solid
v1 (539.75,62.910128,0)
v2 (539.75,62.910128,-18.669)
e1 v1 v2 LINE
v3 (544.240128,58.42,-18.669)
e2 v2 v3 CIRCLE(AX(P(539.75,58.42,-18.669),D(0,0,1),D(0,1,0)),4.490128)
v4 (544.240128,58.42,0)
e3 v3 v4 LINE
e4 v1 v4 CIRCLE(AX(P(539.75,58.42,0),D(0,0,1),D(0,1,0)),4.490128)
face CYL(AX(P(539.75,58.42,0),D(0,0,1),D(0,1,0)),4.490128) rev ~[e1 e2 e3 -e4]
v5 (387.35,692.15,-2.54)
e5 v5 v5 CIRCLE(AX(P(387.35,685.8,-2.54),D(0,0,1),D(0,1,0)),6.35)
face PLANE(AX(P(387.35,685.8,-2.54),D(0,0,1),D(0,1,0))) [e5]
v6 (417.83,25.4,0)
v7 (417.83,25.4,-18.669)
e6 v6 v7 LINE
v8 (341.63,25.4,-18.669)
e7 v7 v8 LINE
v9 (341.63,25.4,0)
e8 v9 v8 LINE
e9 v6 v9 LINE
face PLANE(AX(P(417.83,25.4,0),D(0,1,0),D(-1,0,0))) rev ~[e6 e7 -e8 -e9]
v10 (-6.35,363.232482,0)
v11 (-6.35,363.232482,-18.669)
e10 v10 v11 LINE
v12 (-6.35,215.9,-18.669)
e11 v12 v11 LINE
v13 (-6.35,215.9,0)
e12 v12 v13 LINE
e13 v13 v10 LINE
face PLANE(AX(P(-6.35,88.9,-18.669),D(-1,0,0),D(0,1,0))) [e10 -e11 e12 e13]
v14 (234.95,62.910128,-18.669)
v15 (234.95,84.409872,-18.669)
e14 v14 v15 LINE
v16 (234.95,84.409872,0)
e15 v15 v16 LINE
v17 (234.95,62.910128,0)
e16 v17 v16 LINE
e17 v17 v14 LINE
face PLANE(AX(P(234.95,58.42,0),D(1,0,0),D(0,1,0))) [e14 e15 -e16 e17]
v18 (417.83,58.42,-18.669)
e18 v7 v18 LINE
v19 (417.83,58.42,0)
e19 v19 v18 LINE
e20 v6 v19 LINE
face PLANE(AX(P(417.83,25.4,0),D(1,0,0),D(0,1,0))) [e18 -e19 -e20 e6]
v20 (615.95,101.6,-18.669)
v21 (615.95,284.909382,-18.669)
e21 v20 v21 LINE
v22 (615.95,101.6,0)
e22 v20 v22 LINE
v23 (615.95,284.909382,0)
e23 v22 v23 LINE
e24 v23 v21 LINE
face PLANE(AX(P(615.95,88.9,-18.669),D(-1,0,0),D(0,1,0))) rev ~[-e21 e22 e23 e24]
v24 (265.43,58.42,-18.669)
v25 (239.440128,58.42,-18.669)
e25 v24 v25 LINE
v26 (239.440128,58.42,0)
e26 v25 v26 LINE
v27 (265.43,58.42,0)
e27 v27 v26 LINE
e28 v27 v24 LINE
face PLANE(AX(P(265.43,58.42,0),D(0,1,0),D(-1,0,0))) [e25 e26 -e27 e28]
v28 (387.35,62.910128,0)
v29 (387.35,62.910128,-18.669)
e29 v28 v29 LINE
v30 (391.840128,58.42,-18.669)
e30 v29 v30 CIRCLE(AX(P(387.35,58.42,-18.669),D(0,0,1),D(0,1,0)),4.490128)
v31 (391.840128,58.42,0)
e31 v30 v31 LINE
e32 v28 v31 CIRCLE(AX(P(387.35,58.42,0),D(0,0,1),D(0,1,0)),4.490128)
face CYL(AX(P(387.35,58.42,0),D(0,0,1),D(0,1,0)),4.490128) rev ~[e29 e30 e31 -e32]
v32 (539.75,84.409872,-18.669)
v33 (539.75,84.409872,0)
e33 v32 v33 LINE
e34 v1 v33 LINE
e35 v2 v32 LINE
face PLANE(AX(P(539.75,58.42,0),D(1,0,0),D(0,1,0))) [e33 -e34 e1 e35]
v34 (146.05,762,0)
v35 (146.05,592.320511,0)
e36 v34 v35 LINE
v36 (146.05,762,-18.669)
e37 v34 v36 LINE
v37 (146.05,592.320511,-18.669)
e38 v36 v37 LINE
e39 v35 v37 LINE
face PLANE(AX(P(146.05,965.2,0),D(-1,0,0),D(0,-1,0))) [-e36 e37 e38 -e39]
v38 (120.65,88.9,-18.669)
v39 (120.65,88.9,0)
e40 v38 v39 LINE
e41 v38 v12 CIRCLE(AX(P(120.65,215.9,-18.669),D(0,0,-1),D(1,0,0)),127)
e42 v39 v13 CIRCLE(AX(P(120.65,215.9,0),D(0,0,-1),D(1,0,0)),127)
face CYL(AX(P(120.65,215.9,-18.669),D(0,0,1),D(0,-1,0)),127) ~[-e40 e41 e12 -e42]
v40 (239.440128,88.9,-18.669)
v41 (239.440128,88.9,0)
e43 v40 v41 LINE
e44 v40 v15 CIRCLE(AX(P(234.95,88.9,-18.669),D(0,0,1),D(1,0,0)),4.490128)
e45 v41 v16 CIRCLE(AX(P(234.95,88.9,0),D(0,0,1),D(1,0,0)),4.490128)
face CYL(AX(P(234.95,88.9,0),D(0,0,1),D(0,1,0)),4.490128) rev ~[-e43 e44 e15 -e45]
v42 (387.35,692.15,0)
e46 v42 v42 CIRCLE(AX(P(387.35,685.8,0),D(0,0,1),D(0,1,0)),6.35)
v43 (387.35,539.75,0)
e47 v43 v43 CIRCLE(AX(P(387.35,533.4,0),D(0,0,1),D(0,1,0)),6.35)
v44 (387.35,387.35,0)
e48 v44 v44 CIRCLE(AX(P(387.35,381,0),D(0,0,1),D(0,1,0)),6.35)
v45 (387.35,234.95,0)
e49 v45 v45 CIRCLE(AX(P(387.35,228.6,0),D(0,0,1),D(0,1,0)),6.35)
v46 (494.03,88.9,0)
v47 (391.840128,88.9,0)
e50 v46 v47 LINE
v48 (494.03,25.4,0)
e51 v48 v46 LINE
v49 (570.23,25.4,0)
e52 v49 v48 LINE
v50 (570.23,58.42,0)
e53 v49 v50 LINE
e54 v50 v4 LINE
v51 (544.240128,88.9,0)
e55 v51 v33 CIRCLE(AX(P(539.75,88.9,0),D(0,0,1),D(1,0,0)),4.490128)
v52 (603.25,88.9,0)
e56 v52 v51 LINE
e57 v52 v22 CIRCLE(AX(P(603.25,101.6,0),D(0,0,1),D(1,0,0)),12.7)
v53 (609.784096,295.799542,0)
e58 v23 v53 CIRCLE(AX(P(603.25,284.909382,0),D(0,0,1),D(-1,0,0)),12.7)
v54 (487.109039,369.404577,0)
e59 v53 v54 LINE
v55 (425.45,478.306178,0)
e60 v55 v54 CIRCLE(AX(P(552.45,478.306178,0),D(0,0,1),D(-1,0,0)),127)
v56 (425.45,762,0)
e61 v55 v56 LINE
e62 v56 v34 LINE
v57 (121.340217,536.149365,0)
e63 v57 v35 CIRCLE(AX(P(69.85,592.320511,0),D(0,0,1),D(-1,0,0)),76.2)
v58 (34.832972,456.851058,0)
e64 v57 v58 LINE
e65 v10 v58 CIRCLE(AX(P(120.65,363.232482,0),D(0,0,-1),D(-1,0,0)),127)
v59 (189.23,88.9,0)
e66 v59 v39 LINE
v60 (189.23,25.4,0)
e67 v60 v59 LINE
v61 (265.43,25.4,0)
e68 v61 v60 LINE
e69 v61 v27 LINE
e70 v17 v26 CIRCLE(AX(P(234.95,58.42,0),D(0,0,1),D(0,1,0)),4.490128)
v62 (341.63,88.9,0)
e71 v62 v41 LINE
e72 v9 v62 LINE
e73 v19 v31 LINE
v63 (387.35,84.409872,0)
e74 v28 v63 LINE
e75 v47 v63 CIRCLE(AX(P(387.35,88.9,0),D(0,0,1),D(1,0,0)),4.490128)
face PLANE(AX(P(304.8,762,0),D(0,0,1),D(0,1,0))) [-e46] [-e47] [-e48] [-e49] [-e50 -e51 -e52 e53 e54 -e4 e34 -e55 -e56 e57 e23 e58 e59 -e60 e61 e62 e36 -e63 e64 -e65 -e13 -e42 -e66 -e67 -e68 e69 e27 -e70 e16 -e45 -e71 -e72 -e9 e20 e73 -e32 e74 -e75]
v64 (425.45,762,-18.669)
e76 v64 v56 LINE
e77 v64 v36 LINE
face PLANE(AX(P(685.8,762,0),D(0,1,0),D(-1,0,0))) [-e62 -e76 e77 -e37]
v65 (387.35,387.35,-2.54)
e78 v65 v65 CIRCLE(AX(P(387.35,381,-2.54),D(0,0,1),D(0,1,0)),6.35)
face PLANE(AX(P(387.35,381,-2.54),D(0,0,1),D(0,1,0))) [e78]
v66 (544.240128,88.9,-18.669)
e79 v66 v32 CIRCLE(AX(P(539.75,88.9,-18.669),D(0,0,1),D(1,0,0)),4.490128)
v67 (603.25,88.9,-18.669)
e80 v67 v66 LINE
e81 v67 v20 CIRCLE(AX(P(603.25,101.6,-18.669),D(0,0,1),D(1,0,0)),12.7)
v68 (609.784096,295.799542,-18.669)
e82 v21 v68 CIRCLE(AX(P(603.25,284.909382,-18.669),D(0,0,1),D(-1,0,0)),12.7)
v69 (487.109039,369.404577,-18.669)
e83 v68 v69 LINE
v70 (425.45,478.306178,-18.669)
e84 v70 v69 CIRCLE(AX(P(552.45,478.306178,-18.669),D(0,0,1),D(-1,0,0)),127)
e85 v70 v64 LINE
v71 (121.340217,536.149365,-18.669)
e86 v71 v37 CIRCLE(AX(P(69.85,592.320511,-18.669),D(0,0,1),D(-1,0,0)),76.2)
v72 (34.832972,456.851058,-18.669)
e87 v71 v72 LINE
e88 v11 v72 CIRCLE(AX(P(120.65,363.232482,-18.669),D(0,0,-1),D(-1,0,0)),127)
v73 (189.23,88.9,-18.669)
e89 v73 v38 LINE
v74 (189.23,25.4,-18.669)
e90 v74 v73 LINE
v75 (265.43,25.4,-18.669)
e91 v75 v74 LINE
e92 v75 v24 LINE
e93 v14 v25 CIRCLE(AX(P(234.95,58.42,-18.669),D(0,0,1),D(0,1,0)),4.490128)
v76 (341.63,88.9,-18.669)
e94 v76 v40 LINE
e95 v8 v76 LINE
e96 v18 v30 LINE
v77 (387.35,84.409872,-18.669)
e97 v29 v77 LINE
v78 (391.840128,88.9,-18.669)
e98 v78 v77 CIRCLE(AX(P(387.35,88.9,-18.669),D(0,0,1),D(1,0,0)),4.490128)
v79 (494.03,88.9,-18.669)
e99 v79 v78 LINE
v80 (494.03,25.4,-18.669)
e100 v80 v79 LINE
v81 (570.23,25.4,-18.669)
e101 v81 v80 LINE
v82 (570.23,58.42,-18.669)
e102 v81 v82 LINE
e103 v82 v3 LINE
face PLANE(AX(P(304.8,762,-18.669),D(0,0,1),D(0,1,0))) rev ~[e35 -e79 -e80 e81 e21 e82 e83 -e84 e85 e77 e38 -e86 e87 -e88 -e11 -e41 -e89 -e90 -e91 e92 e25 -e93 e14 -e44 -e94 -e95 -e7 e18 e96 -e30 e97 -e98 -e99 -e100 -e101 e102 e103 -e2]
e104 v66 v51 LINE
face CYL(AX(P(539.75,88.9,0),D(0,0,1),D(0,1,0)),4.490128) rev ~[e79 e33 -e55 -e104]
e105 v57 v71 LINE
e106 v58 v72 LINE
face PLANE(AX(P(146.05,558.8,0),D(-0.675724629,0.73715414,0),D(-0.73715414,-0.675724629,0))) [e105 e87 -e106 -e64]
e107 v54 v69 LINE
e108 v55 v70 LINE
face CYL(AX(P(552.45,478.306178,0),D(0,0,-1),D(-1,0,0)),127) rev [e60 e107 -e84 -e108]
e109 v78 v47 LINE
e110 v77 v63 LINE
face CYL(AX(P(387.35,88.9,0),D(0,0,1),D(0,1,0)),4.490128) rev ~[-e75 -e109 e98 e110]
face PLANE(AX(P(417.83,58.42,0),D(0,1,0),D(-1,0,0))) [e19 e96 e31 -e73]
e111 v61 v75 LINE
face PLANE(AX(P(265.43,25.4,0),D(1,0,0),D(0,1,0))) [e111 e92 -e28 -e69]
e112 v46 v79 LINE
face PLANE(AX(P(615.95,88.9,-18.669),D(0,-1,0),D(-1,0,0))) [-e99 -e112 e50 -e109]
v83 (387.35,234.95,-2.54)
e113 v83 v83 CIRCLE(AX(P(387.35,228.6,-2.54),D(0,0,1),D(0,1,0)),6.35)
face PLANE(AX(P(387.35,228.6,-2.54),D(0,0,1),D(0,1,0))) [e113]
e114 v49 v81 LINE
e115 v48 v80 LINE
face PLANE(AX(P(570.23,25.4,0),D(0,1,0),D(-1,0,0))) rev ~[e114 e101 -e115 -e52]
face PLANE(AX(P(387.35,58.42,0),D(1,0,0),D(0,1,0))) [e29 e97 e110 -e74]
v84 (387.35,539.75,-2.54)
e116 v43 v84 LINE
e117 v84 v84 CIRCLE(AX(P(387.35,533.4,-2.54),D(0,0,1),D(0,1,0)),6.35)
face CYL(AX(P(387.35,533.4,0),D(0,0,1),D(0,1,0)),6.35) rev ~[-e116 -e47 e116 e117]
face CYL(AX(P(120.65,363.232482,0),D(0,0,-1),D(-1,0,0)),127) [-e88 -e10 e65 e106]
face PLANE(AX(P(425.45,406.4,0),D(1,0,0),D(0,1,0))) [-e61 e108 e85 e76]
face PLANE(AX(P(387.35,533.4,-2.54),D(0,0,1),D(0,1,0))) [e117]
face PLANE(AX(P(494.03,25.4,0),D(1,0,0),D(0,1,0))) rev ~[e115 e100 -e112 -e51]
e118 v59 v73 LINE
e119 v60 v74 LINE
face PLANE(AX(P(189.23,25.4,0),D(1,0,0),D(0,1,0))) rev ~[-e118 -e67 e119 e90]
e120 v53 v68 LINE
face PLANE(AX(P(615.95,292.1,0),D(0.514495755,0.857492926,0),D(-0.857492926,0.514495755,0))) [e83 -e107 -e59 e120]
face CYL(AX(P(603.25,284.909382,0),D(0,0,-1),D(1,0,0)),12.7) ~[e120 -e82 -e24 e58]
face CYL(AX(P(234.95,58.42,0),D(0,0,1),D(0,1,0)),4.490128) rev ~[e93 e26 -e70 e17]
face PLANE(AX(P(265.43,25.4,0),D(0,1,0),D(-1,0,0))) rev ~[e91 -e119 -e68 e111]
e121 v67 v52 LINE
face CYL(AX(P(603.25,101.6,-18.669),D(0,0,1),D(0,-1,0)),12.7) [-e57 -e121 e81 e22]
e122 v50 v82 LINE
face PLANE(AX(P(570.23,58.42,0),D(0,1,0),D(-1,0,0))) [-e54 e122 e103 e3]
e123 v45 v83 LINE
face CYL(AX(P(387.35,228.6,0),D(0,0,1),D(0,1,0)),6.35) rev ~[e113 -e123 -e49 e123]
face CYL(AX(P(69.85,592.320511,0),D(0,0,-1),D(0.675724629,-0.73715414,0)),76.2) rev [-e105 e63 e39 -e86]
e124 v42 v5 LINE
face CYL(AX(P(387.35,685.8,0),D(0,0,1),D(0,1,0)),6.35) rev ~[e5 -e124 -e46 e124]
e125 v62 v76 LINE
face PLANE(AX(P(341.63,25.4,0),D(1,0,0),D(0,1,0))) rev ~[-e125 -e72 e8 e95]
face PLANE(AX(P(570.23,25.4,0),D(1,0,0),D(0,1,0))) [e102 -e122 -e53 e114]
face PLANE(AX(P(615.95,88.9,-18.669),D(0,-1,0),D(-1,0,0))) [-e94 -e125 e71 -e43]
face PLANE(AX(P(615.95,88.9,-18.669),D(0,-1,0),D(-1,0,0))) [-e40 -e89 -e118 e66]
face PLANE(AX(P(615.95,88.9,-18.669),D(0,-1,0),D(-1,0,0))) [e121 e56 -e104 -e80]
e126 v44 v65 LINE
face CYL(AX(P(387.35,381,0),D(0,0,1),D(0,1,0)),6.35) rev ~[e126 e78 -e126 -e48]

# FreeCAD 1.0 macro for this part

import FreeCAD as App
import Part
import Sketcher
Q = App.Units.Quantity


def edges_at(feature, points):
    """Names of the edges that pass closest to the given points."""
    edges = feature.Shape.Edges
    near = lambda p: min(range(len(edges)), key=lambda i: edges[i].distToShape(Part.Vertex(*p))[0])
    return sorted({f"Edge{near(p) + 1}" for p in points})

doc = App.newDocument("Part")
body = doc.addObject("PartDesign::Body", "Body")

sketch1 = doc.addObject("Sketcher::SketchObject", "Sketch")
body.addObject(sketch1)
sketch1.AttachmentSupport = (doc.XY_Plane, [""])
sketch1.MapMode = "FlatFace"
sketch1.addGeometry([
    Part.LineSegment(App.Vector(-673.1, 311.15, 0), App.Vector(-673.1, -311.15, 0)),
    Part.LineSegment(App.Vector(-673.1, -311.15, 0), App.Vector(673.1, -311.15, 0)),
    Part.LineSegment(App.Vector(673.1, -311.15, 0), App.Vector(673.1, 311.15, 0)),
    Part.LineSegment(App.Vector(673.1, 311.15, 0), App.Vector(-673.1, 311.15, 0)),
], False)
sketch1.addConstraint([
    Sketcher.Constraint("Coincident", 0, 2, 1, 1),
    Sketcher.Constraint("Coincident", 1, 2, 2, 1),
    Sketcher.Constraint("Coincident", 2, 2, 3, 1),
    Sketcher.Constraint("Coincident", 3, 2, 0, 1),
    Sketcher.Constraint("Vertical", 0),
    Sketcher.Constraint("Horizontal", 1),
    Sketcher.Constraint("Vertical", 2),
    Sketcher.Constraint("Horizontal", 3),
    Sketcher.Constraint("Symmetric", 0, 2, 2, 2, -1, 1),
    Sketcher.Constraint("DistanceX", 1, 1, 1, 2, Q("53 in")),
    Sketcher.Constraint("DistanceY", 0, 2, 0, 1, Q("24.5 in")),
])
pad1 = doc.addObject("PartDesign::Pad", "Pad")
body.addObject(pad1)
pad1.Profile = sketch1
pad1.Length = Q("0.735 in")

sketch2 = doc.addObject("Sketcher::SketchObject", "Sketch001")
body.addObject(sketch2)
sketch2.AttachmentSupport = (doc.XY_Plane, [""])
sketch2.MapMode = "FlatFace"
sketch2.AttachmentOffset = App.Placement(App.Vector(0, 0, 0.735 * 25.4), App.Rotation())
sketch2.addGeometry([
    Part.LineSegment(App.Vector(355.6, -120.65, 0), App.Vector(-355.6, -120.65, 0)),
    Part.LineSegment(App.Vector(-355.6, -120.65, 0), App.Vector(-469.9, -311.15, 0)),
    Part.LineSegment(App.Vector(-469.9, -311.15, 0), App.Vector(469.9, -311.15, 0)),
    Part.LineSegment(App.Vector(469.9, -311.15, 0), App.Vector(355.6, -120.65, 0)),
], False)
sketch2.addConstraint([
    Sketcher.Constraint("Coincident", 0, 2, 1, 1),
    Sketcher.Constraint("Coincident", 1, 2, 2, 1),
    Sketcher.Constraint("Coincident", 2, 2, 3, 1),
    Sketcher.Constraint("Coincident", 3, 2, 0, 1),
    Sketcher.Constraint("Horizontal", 0),
    Sketcher.Constraint("Horizontal", 2),
    Sketcher.Constraint("Equal", 1, 3),
    Sketcher.Constraint("DistanceX", 0, 2, 0, 1, Q("28 in")),
    Sketcher.Constraint("DistanceX", 2, 1, 2, 2, Q("37 in")),
    Sketcher.Constraint("DistanceX", 0, 2, -1, 1, Q("14 in")),
    Sketcher.Constraint("DistanceY", 1, 2, 0, 2, Q("7.5 in")),
    Sketcher.Constraint("DistanceY", 0, 2, -1, 1, Q("4.75 in")),
])
pocket1 = doc.addObject("PartDesign::Pocket", "Pocket")
body.addObject(pocket1)
pocket1.Profile = sketch2
pocket1.Type = "ThroughAll"

sketch3 = doc.addObject("Sketcher::SketchObject", "Sketch002")
body.addObject(sketch3)
sketch3.AttachmentSupport = (doc.XY_Plane, [""])
sketch3.MapMode = "FlatFace"
sketch3.AttachmentOffset = App.Placement(App.Vector(0, 0, 0.735 * 25.4), App.Rotation())
sketch3.addGeometry([
    Part.LineSegment(App.Vector(342.9, 311.15, 0), App.Vector(-342.9, 311.15, 0)),
    Part.LineSegment(App.Vector(-342.9, 311.15, 0), App.Vector(-203.2, 158.75, 0)),
    Part.LineSegment(App.Vector(-203.2, 158.75, 0), App.Vector(203.2, 158.75, 0)),
    Part.LineSegment(App.Vector(203.2, 158.75, 0), App.Vector(342.9, 311.15, 0)),
], False)
sketch3.addConstraint([
    Sketcher.Constraint("Coincident", 0, 2, 1, 1),
    Sketcher.Constraint("Coincident", 1, 2, 2, 1),
    Sketcher.Constraint("Coincident", 2, 2, 3, 1),
    Sketcher.Constraint("Coincident", 3, 2, 0, 1),
    Sketcher.Constraint("Horizontal", 0),
    Sketcher.Constraint("Horizontal", 2),
    Sketcher.Constraint("Equal", 1, 3),
    Sketcher.Constraint("DistanceX", 0, 2, 0, 1, Q("27 in")),
    Sketcher.Constraint("DistanceX", 2, 1, 2, 2, Q("16 in")),
    Sketcher.Constraint("DistanceX", 1, 2, -1, 1, Q("8 in")),
    Sketcher.Constraint("DistanceY", 1, 2, 0, 2, Q("6 in")),
    Sketcher.Constraint("DistanceY", -1, 1, 0, 2, Q("12.25 in")),
])
pocket2 = doc.addObject("PartDesign::Pocket", "Pocket001")
body.addObject(pocket2)
pocket2.Profile = sketch3
pocket2.Type = "ThroughAll"

sketch4 = doc.addObject("Sketcher::SketchObject", "Sketch003")
body.addObject(sketch4)
sketch4.AttachmentSupport = (doc.XY_Plane, [""])
sketch4.MapMode = "FlatFace"
sketch4.AttachmentOffset = App.Placement(App.Vector(0, 0, 0.735 * 25.4), App.Rotation())
sketch4.addGeometry([
    Part.LineSegment(App.Vector(673.1, 115.57, 0), App.Vector(673.1, 39.37, 0)),
    Part.LineSegment(App.Vector(673.1, 39.37, 0), App.Vector(736.6, 39.37, 0)),
    Part.LineSegment(App.Vector(736.6, 39.37, 0), App.Vector(736.6, 115.57, 0)),
    Part.LineSegment(App.Vector(736.6, 115.57, 0), App.Vector(673.1, 115.57, 0)),
    Part.LineSegment(App.Vector(673.1, -36.83, 0), App.Vector(673.1, -113.03, 0)),
    Part.LineSegment(App.Vector(673.1, -113.03, 0), App.Vector(736.6, -113.03, 0)),
    Part.LineSegment(App.Vector(736.6, -113.03, 0), App.Vector(736.6, -36.83, 0)),
    Part.LineSegment(App.Vector(736.6, -36.83, 0), App.Vector(673.1, -36.83, 0)),
    Part.LineSegment(App.Vector(673.1, -189.23, 0), App.Vector(673.1, -265.43, 0)),
    Part.LineSegment(App.Vector(673.1, -265.43, 0), App.Vector(736.6, -265.43, 0)),
    Part.LineSegment(App.Vector(736.6, -265.43, 0), App.Vector(736.6, -189.23, 0)),
    Part.LineSegment(App.Vector(736.6, -189.23, 0), App.Vector(673.1, -189.23, 0)),
    Part.LineSegment(App.Vector(-736.6, -189.23, 0), App.Vector(-736.6, -265.43, 0)),
    Part.LineSegment(App.Vector(-736.6, -265.43, 0), App.Vector(-673.1, -265.43, 0)),
    Part.LineSegment(App.Vector(-673.1, -265.43, 0), App.Vector(-673.1, -189.23, 0)),
    Part.LineSegment(App.Vector(-673.1, -189.23, 0), App.Vector(-736.6, -189.23, 0)),
    Part.LineSegment(App.Vector(-736.6, 115.57, 0), App.Vector(-736.6, 39.37, 0)),
    Part.LineSegment(App.Vector(-736.6, 39.37, 0), App.Vector(-673.1, 39.37, 0)),
    Part.LineSegment(App.Vector(-673.1, 39.37, 0), App.Vector(-673.1, 115.57, 0)),
    Part.LineSegment(App.Vector(-673.1, 115.57, 0), App.Vector(-736.6, 115.57, 0)),
    Part.LineSegment(App.Vector(-736.6, -36.83, 0), App.Vector(-736.6, -113.03, 0)),
    Part.LineSegment(App.Vector(-736.6, -113.03, 0), App.Vector(-673.1, -113.03, 0)),
    Part.LineSegment(App.Vector(-673.1, -113.03, 0), App.Vector(-673.1, -36.83, 0)),
    Part.LineSegment(App.Vector(-673.1, -36.83, 0), App.Vector(-736.6, -36.83, 0)),
], False)
sketch4.addConstraint([
    Sketcher.Constraint("Coincident", 0, 2, 1, 1),
    Sketcher.Constraint("Coincident", 1, 2, 2, 1),
    Sketcher.Constraint("Coincident", 2, 2, 3, 1),
    Sketcher.Constraint("Coincident", 3, 2, 0, 1),
    Sketcher.Constraint("Coincident", 4, 2, 5, 1),
    Sketcher.Constraint("Coincident", 5, 2, 6, 1),
    Sketcher.Constraint("Coincident", 6, 2, 7, 1),
    Sketcher.Constraint("Coincident", 7, 2, 4, 1),
    Sketcher.Constraint("Coincident", 8, 2, 9, 1),
    Sketcher.Constraint("Coincident", 9, 2, 10, 1),
    Sketcher.Constraint("Coincident", 10, 2, 11, 1),
    Sketcher.Constraint("Coincident", 11, 2, 8, 1),
    Sketcher.Constraint("Coincident", 12, 2, 13, 1),
    Sketcher.Constraint("Coincident", 13, 2, 14, 1),
    Sketcher.Constraint("Coincident", 14, 2, 15, 1),
    Sketcher.Constraint("Coincident", 15, 2, 12, 1),
    Sketcher.Constraint("Coincident", 16, 2, 17, 1),
    Sketcher.Constraint("Coincident", 17, 2, 18, 1),
    Sketcher.Constraint("Coincident", 18, 2, 19, 1),
    Sketcher.Constraint("Coincident", 19, 2, 16, 1),
    Sketcher.Constraint("Coincident", 20, 2, 21, 1),
    Sketcher.Constraint("Coincident", 21, 2, 22, 1),
    Sketcher.Constraint("Coincident", 22, 2, 23, 1),
    Sketcher.Constraint("Coincident", 23, 2, 20, 1),
    Sketcher.Constraint("Vertical", 0),
    Sketcher.Constraint("Horizontal", 1),
    Sketcher.Constraint("Vertical", 2),
    Sketcher.Constraint("Horizontal", 3),
    Sketcher.Constraint("Vertical", 4),
    Sketcher.Constraint("Horizontal", 5),
    Sketcher.Constraint("Vertical", 6),
    Sketcher.Constraint("Horizontal", 7),
    Sketcher.Constraint("Vertical", 8),
    Sketcher.Constraint("Horizontal", 9),
    Sketcher.Constraint("Vertical", 10),
    Sketcher.Constraint("Horizontal", 11),
    Sketcher.Constraint("Vertical", 12),
    Sketcher.Constraint("Horizontal", 13),
    Sketcher.Constraint("Vertical", 14),
    Sketcher.Constraint("Horizontal", 15),
    Sketcher.Constraint("Vertical", 16),
    Sketcher.Constraint("Horizontal", 17),
    Sketcher.Constraint("Vertical", 18),
    Sketcher.Constraint("Horizontal", 19),
    Sketcher.Constraint("Vertical", 20),
    Sketcher.Constraint("Horizontal", 21),
    Sketcher.Constraint("Vertical", 22),
    Sketcher.Constraint("Horizontal", 23),
    Sketcher.Constraint("Symmetric", 9, 2, 12, 2, -2),
    Sketcher.Constraint("Symmetric", 11, 2, 14, 2, -2),
    Sketcher.Constraint("Symmetric", 1, 2, 16, 2, -2),
    Sketcher.Constraint("Symmetric", 3, 2, 18, 2, -2),
    Sketcher.Constraint("Symmetric", 5, 2, 20, 2, -2),
    Sketcher.Constraint("Symmetric", 7, 2, 22, 2, -2),
    Sketcher.Constraint("Vertical", 3, 2, 4, 2),
    Sketcher.Constraint("Vertical", 2, 2, 5, 2),
    Sketcher.Constraint("Vertical", 7, 2, 8, 2),
    Sketcher.Constraint("Vertical", 6, 2, 9, 2),
    Sketcher.Constraint("Equal", 2, 4),
    Sketcher.Constraint("Equal", 6, 8),
    Sketcher.Constraint("DistanceY", 0, 2, 0, 1, Q("3 in")),
    Sketcher.Constraint("DistanceX", 1, 1, 1, 2, Q("2.5 in")),
    Sketcher.Constraint("DistanceX", -1, 1, 1, 2, Q("29 in")),
    Sketcher.Constraint("DistanceY", 4, 2, 0, 2, Q("6 in")),
    Sketcher.Constraint("DistanceY", 8, 2, 4, 2, Q("6 in")),
    Sketcher.Constraint("DistanceY", -1, 1, 0, 2, Q("1.55 in")),
])
pad2 = doc.addObject("PartDesign::Pad", "Pad001")
body.addObject(pad2)
pad2.Profile = sketch4
pad2.Length = Q("0.735 in")
pad2.Reversed = True
doc.recompute()

fillet = doc.addObject("PartDesign::Fillet", "Fillet")
body.addObject(fillet)
fillet.Base = (pad2, edges_at(pad2, [
    (673.1, -311.15, 9.335),
    (-673.1, -311.15, 9.335),
    (-469.9, -311.15, 9.335),
    (469.9, -311.15, 9.335),
]))
fillet.Radius = Q("0.5 in")
doc.recompute()

fillet2 = doc.addObject("PartDesign::Fillet", "Fillet001")
body.addObject(fillet2)
fillet2.Base = (fillet, edges_at(fillet, [(-673.1, 311.15, 9.335), (673.1, 311.15, 9.335)]))
fillet2.Radius = Q("5 in")

sketch5 = doc.addObject("Sketcher::SketchObject", "Sketch004")
body.addObject(sketch5)
sketch5.AttachmentSupport = (doc.XY_Plane, [""])
sketch5.MapMode = "FlatFace"
sketch5.AttachmentOffset = App.Placement(App.Vector(0, 0, 0.735 * 25.4), App.Rotation())
sketch5.addGeometry([
    Part.LineSegment(App.Vector(-703.58, 69.85, 0), App.Vector(-703.58, 39.37, 0)),
    Part.LineSegment(App.Vector(-703.58, 39.37, 0), App.Vector(-673.1, 39.37, 0)),
    Part.LineSegment(App.Vector(-673.1, 39.37, 0), App.Vector(-673.1, 69.85, 0)),
    Part.LineSegment(App.Vector(-673.1, 69.85, 0), App.Vector(-703.58, 69.85, 0)),
    Part.LineSegment(App.Vector(-703.58, -82.55, 0), App.Vector(-703.58, -113.03, 0)),
    Part.LineSegment(App.Vector(-703.58, -113.03, 0), App.Vector(-673.1, -113.03, 0)),
    Part.LineSegment(App.Vector(-673.1, -113.03, 0), App.Vector(-673.1, -82.55, 0)),
    Part.LineSegment(App.Vector(-673.1, -82.55, 0), App.Vector(-703.58, -82.55, 0)),
    Part.LineSegment(App.Vector(-703.58, -234.95, 0), App.Vector(-703.58, -265.43, 0)),
    Part.LineSegment(App.Vector(-703.58, -265.43, 0), App.Vector(-673.1, -265.43, 0)),
    Part.LineSegment(App.Vector(-673.1, -265.43, 0), App.Vector(-673.1, -234.95, 0)),
    Part.LineSegment(App.Vector(-673.1, -234.95, 0), App.Vector(-703.58, -234.95, 0)),
    Part.LineSegment(App.Vector(673.1, -234.95, 0), App.Vector(673.1, -265.43, 0)),
    Part.LineSegment(App.Vector(673.1, -265.43, 0), App.Vector(703.58, -265.43, 0)),
    Part.LineSegment(App.Vector(703.58, -265.43, 0), App.Vector(703.58, -234.95, 0)),
    Part.LineSegment(App.Vector(703.58, -234.95, 0), App.Vector(673.1, -234.95, 0)),
    Part.LineSegment(App.Vector(673.1, -82.55, 0), App.Vector(673.1, -113.03, 0)),
    Part.LineSegment(App.Vector(673.1, -113.03, 0), App.Vector(703.58, -113.03, 0)),
    Part.LineSegment(App.Vector(703.58, -113.03, 0), App.Vector(703.58, -82.55, 0)),
    Part.LineSegment(App.Vector(703.58, -82.55, 0), App.Vector(673.1, -82.55, 0)),
    Part.LineSegment(App.Vector(673.1, 69.85, 0), App.Vector(673.1, 39.37, 0)),
    Part.LineSegment(App.Vector(673.1, 39.37, 0), App.Vector(703.58, 39.37, 0)),
    Part.LineSegment(App.Vector(703.58, 39.37, 0), App.Vector(703.58, 69.85, 0)),
    Part.LineSegment(App.Vector(703.58, 69.85, 0), App.Vector(673.1, 69.85, 0)),
], False)
sketch5.addConstraint([
    Sketcher.Constraint("Coincident", 0, 2, 1, 1),
    Sketcher.Constraint("Coincident", 1, 2, 2, 1),
    Sketcher.Constraint("Coincident", 2, 2, 3, 1),
    Sketcher.Constraint("Coincident", 3, 2, 0, 1),
    Sketcher.Constraint("Coincident", 4, 2, 5, 1),
    Sketcher.Constraint("Coincident", 5, 2, 6, 1),
    Sketcher.Constraint("Coincident", 6, 2, 7, 1),
    Sketcher.Constraint("Coincident", 7, 2, 4, 1),
    Sketcher.Constraint("Coincident", 8, 2, 9, 1),
    Sketcher.Constraint("Coincident", 9, 2, 10, 1),
    Sketcher.Constraint("Coincident", 10, 2, 11, 1),
    Sketcher.Constraint("Coincident", 11, 2, 8, 1),
    Sketcher.Constraint("Coincident", 12, 2, 13, 1),
    Sketcher.Constraint("Coincident", 13, 2, 14, 1),
    Sketcher.Constraint("Coincident", 14, 2, 15, 1),
    Sketcher.Constraint("Coincident", 15, 2, 12, 1),
    Sketcher.Constraint("Coincident", 16, 2, 17, 1),
    Sketcher.Constraint("Coincident", 17, 2, 18, 1),
    Sketcher.Constraint("Coincident", 18, 2, 19, 1),
    Sketcher.Constraint("Coincident", 19, 2, 16, 1),
    Sketcher.Constraint("Coincident", 20, 2, 21, 1),
    Sketcher.Constraint("Coincident", 21, 2, 22, 1),
    Sketcher.Constraint("Coincident", 22, 2, 23, 1),
    Sketcher.Constraint("Coincident", 23, 2, 20, 1),
    Sketcher.Constraint("Vertical", 0),
    Sketcher.Constraint("Horizontal", 1),
    Sketcher.Constraint("Vertical", 2),
    Sketcher.Constraint("Horizontal", 3),
    Sketcher.Constraint("Vertical", 4),
    Sketcher.Constraint("Horizontal", 5),
    Sketcher.Constraint("Vertical", 6),
    Sketcher.Constraint("Horizontal", 7),
    Sketcher.Constraint("Vertical", 8),
    Sketcher.Constraint("Horizontal", 9),
    Sketcher.Constraint("Vertical", 10),
    Sketcher.Constraint("Horizontal", 11),
    Sketcher.Constraint("Vertical", 12),
    Sketcher.Constraint("Horizontal", 13),
    Sketcher.Constraint("Vertical", 14),
    Sketcher.Constraint("Horizontal", 15),
    Sketcher.Constraint("Vertical", 16),
    Sketcher.Constraint("Horizontal", 17),
    Sketcher.Constraint("Vertical", 18),
    Sketcher.Constraint("Horizontal", 19),
    Sketcher.Constraint("Vertical", 20),
    Sketcher.Constraint("Horizontal", 21),
    Sketcher.Constraint("Vertical", 22),
    Sketcher.Constraint("Horizontal", 23),
    Sketcher.Constraint("Symmetric", 9, 2, 12, 2, -2),
    Sketcher.Constraint("Symmetric", 11, 2, 14, 2, -2),
    Sketcher.Constraint("Symmetric", 5, 2, 16, 2, -2),
    Sketcher.Constraint("Symmetric", 7, 2, 18, 2, -2),
    Sketcher.Constraint("Symmetric", 1, 2, 20, 2, -2),
    Sketcher.Constraint("Symmetric", 3, 2, 22, 2, -2),
    Sketcher.Constraint("Vertical", 3, 2, 4, 2),
    Sketcher.Constraint("Vertical", 2, 2, 5, 2),
    Sketcher.Constraint("Vertical", 7, 2, 8, 2),
    Sketcher.Constraint("Vertical", 6, 2, 9, 2),
    Sketcher.Constraint("Equal", 23, 0),
    Sketcher.Constraint("Equal", 2, 4),
    Sketcher.Constraint("Equal", 6, 8),
    Sketcher.Constraint("DistanceX", 1, 1, 1, 2, Q("1.2 in")),
    Sketcher.Constraint("DistanceY", 4, 2, 0, 2, Q("6 in")),
    Sketcher.Constraint("DistanceY", 8, 2, 4, 2, Q("6 in")),
    Sketcher.Constraint("DistanceX", 9, 2, 12, 2, Q("53 in")),
    Sketcher.Constraint("DistanceY", -1, 1, 0, 2, Q("1.55 in")),
])
pocket3 = doc.addObject("PartDesign::Pocket", "Pocket002")
body.addObject(pocket3)
pocket3.Profile = sketch5
pocket3.Type = "ThroughAll"

sketch6 = doc.addObject("Sketcher::SketchObject", "Sketch005")
body.addObject(sketch6)
sketch6.AttachmentSupport = (doc.XY_Plane, [""])
sketch6.MapMode = "FlatFace"
sketch6.AttachmentOffset = App.Placement(App.Vector(0, 0, 0.735 * 25.4), App.Rotation())
sketch6.addGeometry([
    Part.Circle(App.Vector(703.58, -234.95, 0), App.Vector(0, 0, 1), 4.490128),
    Part.Circle(App.Vector(673.1, -234.95, 0), App.Vector(0, 0, 1), 4.490128),
    Part.Circle(App.Vector(703.58, -82.55, 0), App.Vector(0, 0, 1), 4.490128),
    Part.Circle(App.Vector(673.1, -82.55, 0), App.Vector(0, 0, 1), 4.490128),
    Part.Circle(App.Vector(703.58, 69.85, 0), App.Vector(0, 0, 1), 4.490128),
    Part.Circle(App.Vector(673.1, 69.85, 0), App.Vector(0, 0, 1), 4.490128),
    Part.Circle(App.Vector(-673.1, 69.85, 0), App.Vector(0, 0, 1), 4.490128),
    Part.Circle(App.Vector(-703.58, 69.85, 0), App.Vector(0, 0, 1), 4.490128),
    Part.Circle(App.Vector(-673.1, -82.55, 0), App.Vector(0, 0, 1), 4.490128),
    Part.Circle(App.Vector(-703.58, -82.55, 0), App.Vector(0, 0, 1), 4.490128),
    Part.Circle(App.Vector(-703.58, -234.95, 0), App.Vector(0, 0, 1), 4.490128),
    Part.Circle(App.Vector(-673.1, -234.95, 0), App.Vector(0, 0, 1), 4.490128),
], False)
sketch6.addConstraint([
    Sketcher.Constraint("Equal", 0, 1),
    Sketcher.Constraint("Equal", 1, 2),
    Sketcher.Constraint("Equal", 2, 3),
    Sketcher.Constraint("Equal", 3, 4),
    Sketcher.Constraint("Equal", 4, 5),
    Sketcher.Constraint("Equal", 5, 6),
    Sketcher.Constraint("Equal", 6, 7),
    Sketcher.Constraint("Equal", 7, 8),
    Sketcher.Constraint("Equal", 8, 9),
    Sketcher.Constraint("Equal", 9, 10),
    Sketcher.Constraint("Equal", 10, 11),
    Sketcher.Constraint("Symmetric", 5, 3, 6, 3, -2),
    Sketcher.Constraint("Symmetric", 4, 3, 7, 3, -2),
    Sketcher.Constraint("Symmetric", 3, 3, 8, 3, -2),
    Sketcher.Constraint("Symmetric", 2, 3, 9, 3, -2),
    Sketcher.Constraint("Symmetric", 0, 3, 10, 3, -2),
    Sketcher.Constraint("Symmetric", 1, 3, 11, 3, -2),
    Sketcher.Constraint("Horizontal", 0, 3, 1, 3),
    Sketcher.Constraint("Horizontal", 2, 3, 3, 3),
    Sketcher.Constraint("Horizontal", 4, 3, 5, 3),
    Sketcher.Constraint("Vertical", 0, 3, 2, 3),
    Sketcher.Constraint("Vertical", 1, 3, 3, 3),
    Sketcher.Constraint("Vertical", 2, 3, 4, 3),
    Sketcher.Constraint("Vertical", 3, 3, 5, 3),
    Sketcher.Constraint("DistanceY", 0, 3, 2, 3, Q("6 in")),
    Sketcher.Constraint("DistanceY", 2, 3, 4, 3, Q("6 in")),
    Sketcher.Constraint("DistanceX", 6, 3, 5, 3, Q("53 in")),
    Sketcher.Constraint("DistanceX", -1, 1, 0, 3, Q("27.7 in")),
    Sketcher.Constraint("DistanceY", 0, 3, -1, 1, Q("9.25 in")),
    Sketcher.Constraint("Diameter", 0, Q("8.980256 mm")),
])
pocket4 = doc.addObject("PartDesign::Pocket", "Pocket003")
body.addObject(pocket4)
pocket4.Profile = sketch6
pocket4.Type = "ThroughAll"
doc.recompute()

fillet3 = doc.addObject("PartDesign::Fillet", "Fillet002")
body.addObject(fillet3)
fillet3.Base = (pocket4, edges_at(pocket4, [(-355.6, -120.65, 9.335), (355.6, -120.65, 9.335)]))
fillet3.Radius = Q("5 in")
doc.recompute()

fillet4 = doc.addObject("PartDesign::Fillet", "Fillet003")
body.addObject(fillet4)
fillet4.Base = (fillet3, edges_at(fillet3, [(-342.9, 311.15, 9.335), (342.9, 311.15, 9.335)]))
fillet4.Radius = Q("5 in")
doc.recompute()

fillet5 = doc.addObject("PartDesign::Fillet", "Fillet004")
body.addObject(fillet5)
fillet5.Base = (fillet4, edges_at(fillet4, [(-203.2, 158.75, 9.335), (203.2, 158.75, 9.335)]))
fillet5.Radius = Q("3 in")

sketch7 = doc.addObject("Sketcher::SketchObject", "Sketch006")
body.addObject(sketch7)
sketch7.AttachmentSupport = (doc.XY_Plane, [""])
sketch7.MapMode = "FlatFace"
sketch7.AttachmentOffset = App.Placement(App.Vector(0, 0, 0.735 * 25.4), App.Rotation())
sketch7.addGeometry([
    Part.LineSegment(App.Vector(0, 381, 0), App.Vector(0, -381, 0)),
    Part.LineSegment(App.Vector(0, -381, 0), App.Vector(736.6, -381, 0)),
    Part.LineSegment(App.Vector(736.6, -381, 0), App.Vector(736.6, 381, 0)),
    Part.LineSegment(App.Vector(736.6, 381, 0), App.Vector(0, 381, 0)),
], False)
sketch7.addConstraint([
    Sketcher.Constraint("Coincident", 0, 2, 1, 1),
    Sketcher.Constraint("Coincident", 1, 2, 2, 1),
    Sketcher.Constraint("Coincident", 2, 2, 3, 1),
    Sketcher.Constraint("Coincident", 3, 2, 0, 1),
    Sketcher.Constraint("Vertical", 0),
    Sketcher.Constraint("Horizontal", 1),
    Sketcher.Constraint("Vertical", 2),
    Sketcher.Constraint("Horizontal", 3),
    Sketcher.Constraint("Symmetric", 0, 2, 3, 2, -1, 1),
    Sketcher.Constraint("DistanceX", 1, 1, 1, 2, Q("29 in")),
    Sketcher.Constraint("DistanceY", 0, 2, 0, 1, Q("30 in")),
])
pocket5 = doc.addObject("PartDesign::Pocket", "Pocket004")
body.addObject(pocket5)
pocket5.Profile = sketch7
pocket5.Type = "ThroughAll"

sketch8 = doc.addObject("Sketcher::SketchObject", "Sketch007")
body.addObject(sketch8)
sketch8.AttachmentSupport = (doc.XY_Plane, [""])
sketch8.MapMode = "FlatFace"
sketch8.AttachmentOffset = App.Placement(App.Vector(0, 0, 0.735 * 25.4), App.Rotation())
sketch8.addGeometry([
    Part.Circle(App.Vector(-228.6, -82.55, 0), App.Vector(0, 0, 1), 6.35),
    Part.Circle(App.Vector(-381, -82.55, 0), App.Vector(0, 0, 1), 6.35),
    Part.Circle(App.Vector(-533.4, -82.55, 0), App.Vector(0, 0, 1), 6.35),
    Part.Circle(App.Vector(-76.2, -82.55, 0), App.Vector(0, 0, 1), 6.35),
], False)
sketch8.addConstraint([
    Sketcher.Constraint("Equal", 0, 1),
    Sketcher.Constraint("Equal", 1, 2),
    Sketcher.Constraint("Equal", 2, 3),
    Sketcher.Constraint("Horizontal", 0, 3, 1, 3),
    Sketcher.Constraint("Horizontal", 1, 3, 2, 3),
    Sketcher.Constraint("Horizontal", 2, 3, 3, 3),
    Sketcher.Constraint("Diameter", 0, Q("0.5 in")),
    Sketcher.Constraint("DistanceX", 0, 3, -1, 1, Q("9 in")),
    Sketcher.Constraint("DistanceX", 1, 3, -1, 1, Q("15 in")),
    Sketcher.Constraint("DistanceX", 2, 3, -1, 1, Q("21 in")),
    Sketcher.Constraint("DistanceX", 3, 3, -1, 1, Q("3 in")),
    Sketcher.Constraint("DistanceY", 0, 3, -1, 1, Q("3.25 in")),
])
pocket6 = doc.addObject("PartDesign::Pocket", "Pocket005")
body.addObject(pocket6)
pocket6.Profile = sketch8
pocket6.Length = Q("0.1 in")
body2 = doc.addObject("PartDesign::Body", "Body001")
doc.recompute()

body.Placement = App.Placement(App.Vector(304.8, 762, -18.669), App.Rotation(App.Vector(0, 0, 1), 90))
boolean = doc.addObject("PartDesign::Boolean", "Boolean")
body2.addObject(boolean)
boolean.Type = "Fuse"
boolean.addObjects([body])

doc.recompute()
